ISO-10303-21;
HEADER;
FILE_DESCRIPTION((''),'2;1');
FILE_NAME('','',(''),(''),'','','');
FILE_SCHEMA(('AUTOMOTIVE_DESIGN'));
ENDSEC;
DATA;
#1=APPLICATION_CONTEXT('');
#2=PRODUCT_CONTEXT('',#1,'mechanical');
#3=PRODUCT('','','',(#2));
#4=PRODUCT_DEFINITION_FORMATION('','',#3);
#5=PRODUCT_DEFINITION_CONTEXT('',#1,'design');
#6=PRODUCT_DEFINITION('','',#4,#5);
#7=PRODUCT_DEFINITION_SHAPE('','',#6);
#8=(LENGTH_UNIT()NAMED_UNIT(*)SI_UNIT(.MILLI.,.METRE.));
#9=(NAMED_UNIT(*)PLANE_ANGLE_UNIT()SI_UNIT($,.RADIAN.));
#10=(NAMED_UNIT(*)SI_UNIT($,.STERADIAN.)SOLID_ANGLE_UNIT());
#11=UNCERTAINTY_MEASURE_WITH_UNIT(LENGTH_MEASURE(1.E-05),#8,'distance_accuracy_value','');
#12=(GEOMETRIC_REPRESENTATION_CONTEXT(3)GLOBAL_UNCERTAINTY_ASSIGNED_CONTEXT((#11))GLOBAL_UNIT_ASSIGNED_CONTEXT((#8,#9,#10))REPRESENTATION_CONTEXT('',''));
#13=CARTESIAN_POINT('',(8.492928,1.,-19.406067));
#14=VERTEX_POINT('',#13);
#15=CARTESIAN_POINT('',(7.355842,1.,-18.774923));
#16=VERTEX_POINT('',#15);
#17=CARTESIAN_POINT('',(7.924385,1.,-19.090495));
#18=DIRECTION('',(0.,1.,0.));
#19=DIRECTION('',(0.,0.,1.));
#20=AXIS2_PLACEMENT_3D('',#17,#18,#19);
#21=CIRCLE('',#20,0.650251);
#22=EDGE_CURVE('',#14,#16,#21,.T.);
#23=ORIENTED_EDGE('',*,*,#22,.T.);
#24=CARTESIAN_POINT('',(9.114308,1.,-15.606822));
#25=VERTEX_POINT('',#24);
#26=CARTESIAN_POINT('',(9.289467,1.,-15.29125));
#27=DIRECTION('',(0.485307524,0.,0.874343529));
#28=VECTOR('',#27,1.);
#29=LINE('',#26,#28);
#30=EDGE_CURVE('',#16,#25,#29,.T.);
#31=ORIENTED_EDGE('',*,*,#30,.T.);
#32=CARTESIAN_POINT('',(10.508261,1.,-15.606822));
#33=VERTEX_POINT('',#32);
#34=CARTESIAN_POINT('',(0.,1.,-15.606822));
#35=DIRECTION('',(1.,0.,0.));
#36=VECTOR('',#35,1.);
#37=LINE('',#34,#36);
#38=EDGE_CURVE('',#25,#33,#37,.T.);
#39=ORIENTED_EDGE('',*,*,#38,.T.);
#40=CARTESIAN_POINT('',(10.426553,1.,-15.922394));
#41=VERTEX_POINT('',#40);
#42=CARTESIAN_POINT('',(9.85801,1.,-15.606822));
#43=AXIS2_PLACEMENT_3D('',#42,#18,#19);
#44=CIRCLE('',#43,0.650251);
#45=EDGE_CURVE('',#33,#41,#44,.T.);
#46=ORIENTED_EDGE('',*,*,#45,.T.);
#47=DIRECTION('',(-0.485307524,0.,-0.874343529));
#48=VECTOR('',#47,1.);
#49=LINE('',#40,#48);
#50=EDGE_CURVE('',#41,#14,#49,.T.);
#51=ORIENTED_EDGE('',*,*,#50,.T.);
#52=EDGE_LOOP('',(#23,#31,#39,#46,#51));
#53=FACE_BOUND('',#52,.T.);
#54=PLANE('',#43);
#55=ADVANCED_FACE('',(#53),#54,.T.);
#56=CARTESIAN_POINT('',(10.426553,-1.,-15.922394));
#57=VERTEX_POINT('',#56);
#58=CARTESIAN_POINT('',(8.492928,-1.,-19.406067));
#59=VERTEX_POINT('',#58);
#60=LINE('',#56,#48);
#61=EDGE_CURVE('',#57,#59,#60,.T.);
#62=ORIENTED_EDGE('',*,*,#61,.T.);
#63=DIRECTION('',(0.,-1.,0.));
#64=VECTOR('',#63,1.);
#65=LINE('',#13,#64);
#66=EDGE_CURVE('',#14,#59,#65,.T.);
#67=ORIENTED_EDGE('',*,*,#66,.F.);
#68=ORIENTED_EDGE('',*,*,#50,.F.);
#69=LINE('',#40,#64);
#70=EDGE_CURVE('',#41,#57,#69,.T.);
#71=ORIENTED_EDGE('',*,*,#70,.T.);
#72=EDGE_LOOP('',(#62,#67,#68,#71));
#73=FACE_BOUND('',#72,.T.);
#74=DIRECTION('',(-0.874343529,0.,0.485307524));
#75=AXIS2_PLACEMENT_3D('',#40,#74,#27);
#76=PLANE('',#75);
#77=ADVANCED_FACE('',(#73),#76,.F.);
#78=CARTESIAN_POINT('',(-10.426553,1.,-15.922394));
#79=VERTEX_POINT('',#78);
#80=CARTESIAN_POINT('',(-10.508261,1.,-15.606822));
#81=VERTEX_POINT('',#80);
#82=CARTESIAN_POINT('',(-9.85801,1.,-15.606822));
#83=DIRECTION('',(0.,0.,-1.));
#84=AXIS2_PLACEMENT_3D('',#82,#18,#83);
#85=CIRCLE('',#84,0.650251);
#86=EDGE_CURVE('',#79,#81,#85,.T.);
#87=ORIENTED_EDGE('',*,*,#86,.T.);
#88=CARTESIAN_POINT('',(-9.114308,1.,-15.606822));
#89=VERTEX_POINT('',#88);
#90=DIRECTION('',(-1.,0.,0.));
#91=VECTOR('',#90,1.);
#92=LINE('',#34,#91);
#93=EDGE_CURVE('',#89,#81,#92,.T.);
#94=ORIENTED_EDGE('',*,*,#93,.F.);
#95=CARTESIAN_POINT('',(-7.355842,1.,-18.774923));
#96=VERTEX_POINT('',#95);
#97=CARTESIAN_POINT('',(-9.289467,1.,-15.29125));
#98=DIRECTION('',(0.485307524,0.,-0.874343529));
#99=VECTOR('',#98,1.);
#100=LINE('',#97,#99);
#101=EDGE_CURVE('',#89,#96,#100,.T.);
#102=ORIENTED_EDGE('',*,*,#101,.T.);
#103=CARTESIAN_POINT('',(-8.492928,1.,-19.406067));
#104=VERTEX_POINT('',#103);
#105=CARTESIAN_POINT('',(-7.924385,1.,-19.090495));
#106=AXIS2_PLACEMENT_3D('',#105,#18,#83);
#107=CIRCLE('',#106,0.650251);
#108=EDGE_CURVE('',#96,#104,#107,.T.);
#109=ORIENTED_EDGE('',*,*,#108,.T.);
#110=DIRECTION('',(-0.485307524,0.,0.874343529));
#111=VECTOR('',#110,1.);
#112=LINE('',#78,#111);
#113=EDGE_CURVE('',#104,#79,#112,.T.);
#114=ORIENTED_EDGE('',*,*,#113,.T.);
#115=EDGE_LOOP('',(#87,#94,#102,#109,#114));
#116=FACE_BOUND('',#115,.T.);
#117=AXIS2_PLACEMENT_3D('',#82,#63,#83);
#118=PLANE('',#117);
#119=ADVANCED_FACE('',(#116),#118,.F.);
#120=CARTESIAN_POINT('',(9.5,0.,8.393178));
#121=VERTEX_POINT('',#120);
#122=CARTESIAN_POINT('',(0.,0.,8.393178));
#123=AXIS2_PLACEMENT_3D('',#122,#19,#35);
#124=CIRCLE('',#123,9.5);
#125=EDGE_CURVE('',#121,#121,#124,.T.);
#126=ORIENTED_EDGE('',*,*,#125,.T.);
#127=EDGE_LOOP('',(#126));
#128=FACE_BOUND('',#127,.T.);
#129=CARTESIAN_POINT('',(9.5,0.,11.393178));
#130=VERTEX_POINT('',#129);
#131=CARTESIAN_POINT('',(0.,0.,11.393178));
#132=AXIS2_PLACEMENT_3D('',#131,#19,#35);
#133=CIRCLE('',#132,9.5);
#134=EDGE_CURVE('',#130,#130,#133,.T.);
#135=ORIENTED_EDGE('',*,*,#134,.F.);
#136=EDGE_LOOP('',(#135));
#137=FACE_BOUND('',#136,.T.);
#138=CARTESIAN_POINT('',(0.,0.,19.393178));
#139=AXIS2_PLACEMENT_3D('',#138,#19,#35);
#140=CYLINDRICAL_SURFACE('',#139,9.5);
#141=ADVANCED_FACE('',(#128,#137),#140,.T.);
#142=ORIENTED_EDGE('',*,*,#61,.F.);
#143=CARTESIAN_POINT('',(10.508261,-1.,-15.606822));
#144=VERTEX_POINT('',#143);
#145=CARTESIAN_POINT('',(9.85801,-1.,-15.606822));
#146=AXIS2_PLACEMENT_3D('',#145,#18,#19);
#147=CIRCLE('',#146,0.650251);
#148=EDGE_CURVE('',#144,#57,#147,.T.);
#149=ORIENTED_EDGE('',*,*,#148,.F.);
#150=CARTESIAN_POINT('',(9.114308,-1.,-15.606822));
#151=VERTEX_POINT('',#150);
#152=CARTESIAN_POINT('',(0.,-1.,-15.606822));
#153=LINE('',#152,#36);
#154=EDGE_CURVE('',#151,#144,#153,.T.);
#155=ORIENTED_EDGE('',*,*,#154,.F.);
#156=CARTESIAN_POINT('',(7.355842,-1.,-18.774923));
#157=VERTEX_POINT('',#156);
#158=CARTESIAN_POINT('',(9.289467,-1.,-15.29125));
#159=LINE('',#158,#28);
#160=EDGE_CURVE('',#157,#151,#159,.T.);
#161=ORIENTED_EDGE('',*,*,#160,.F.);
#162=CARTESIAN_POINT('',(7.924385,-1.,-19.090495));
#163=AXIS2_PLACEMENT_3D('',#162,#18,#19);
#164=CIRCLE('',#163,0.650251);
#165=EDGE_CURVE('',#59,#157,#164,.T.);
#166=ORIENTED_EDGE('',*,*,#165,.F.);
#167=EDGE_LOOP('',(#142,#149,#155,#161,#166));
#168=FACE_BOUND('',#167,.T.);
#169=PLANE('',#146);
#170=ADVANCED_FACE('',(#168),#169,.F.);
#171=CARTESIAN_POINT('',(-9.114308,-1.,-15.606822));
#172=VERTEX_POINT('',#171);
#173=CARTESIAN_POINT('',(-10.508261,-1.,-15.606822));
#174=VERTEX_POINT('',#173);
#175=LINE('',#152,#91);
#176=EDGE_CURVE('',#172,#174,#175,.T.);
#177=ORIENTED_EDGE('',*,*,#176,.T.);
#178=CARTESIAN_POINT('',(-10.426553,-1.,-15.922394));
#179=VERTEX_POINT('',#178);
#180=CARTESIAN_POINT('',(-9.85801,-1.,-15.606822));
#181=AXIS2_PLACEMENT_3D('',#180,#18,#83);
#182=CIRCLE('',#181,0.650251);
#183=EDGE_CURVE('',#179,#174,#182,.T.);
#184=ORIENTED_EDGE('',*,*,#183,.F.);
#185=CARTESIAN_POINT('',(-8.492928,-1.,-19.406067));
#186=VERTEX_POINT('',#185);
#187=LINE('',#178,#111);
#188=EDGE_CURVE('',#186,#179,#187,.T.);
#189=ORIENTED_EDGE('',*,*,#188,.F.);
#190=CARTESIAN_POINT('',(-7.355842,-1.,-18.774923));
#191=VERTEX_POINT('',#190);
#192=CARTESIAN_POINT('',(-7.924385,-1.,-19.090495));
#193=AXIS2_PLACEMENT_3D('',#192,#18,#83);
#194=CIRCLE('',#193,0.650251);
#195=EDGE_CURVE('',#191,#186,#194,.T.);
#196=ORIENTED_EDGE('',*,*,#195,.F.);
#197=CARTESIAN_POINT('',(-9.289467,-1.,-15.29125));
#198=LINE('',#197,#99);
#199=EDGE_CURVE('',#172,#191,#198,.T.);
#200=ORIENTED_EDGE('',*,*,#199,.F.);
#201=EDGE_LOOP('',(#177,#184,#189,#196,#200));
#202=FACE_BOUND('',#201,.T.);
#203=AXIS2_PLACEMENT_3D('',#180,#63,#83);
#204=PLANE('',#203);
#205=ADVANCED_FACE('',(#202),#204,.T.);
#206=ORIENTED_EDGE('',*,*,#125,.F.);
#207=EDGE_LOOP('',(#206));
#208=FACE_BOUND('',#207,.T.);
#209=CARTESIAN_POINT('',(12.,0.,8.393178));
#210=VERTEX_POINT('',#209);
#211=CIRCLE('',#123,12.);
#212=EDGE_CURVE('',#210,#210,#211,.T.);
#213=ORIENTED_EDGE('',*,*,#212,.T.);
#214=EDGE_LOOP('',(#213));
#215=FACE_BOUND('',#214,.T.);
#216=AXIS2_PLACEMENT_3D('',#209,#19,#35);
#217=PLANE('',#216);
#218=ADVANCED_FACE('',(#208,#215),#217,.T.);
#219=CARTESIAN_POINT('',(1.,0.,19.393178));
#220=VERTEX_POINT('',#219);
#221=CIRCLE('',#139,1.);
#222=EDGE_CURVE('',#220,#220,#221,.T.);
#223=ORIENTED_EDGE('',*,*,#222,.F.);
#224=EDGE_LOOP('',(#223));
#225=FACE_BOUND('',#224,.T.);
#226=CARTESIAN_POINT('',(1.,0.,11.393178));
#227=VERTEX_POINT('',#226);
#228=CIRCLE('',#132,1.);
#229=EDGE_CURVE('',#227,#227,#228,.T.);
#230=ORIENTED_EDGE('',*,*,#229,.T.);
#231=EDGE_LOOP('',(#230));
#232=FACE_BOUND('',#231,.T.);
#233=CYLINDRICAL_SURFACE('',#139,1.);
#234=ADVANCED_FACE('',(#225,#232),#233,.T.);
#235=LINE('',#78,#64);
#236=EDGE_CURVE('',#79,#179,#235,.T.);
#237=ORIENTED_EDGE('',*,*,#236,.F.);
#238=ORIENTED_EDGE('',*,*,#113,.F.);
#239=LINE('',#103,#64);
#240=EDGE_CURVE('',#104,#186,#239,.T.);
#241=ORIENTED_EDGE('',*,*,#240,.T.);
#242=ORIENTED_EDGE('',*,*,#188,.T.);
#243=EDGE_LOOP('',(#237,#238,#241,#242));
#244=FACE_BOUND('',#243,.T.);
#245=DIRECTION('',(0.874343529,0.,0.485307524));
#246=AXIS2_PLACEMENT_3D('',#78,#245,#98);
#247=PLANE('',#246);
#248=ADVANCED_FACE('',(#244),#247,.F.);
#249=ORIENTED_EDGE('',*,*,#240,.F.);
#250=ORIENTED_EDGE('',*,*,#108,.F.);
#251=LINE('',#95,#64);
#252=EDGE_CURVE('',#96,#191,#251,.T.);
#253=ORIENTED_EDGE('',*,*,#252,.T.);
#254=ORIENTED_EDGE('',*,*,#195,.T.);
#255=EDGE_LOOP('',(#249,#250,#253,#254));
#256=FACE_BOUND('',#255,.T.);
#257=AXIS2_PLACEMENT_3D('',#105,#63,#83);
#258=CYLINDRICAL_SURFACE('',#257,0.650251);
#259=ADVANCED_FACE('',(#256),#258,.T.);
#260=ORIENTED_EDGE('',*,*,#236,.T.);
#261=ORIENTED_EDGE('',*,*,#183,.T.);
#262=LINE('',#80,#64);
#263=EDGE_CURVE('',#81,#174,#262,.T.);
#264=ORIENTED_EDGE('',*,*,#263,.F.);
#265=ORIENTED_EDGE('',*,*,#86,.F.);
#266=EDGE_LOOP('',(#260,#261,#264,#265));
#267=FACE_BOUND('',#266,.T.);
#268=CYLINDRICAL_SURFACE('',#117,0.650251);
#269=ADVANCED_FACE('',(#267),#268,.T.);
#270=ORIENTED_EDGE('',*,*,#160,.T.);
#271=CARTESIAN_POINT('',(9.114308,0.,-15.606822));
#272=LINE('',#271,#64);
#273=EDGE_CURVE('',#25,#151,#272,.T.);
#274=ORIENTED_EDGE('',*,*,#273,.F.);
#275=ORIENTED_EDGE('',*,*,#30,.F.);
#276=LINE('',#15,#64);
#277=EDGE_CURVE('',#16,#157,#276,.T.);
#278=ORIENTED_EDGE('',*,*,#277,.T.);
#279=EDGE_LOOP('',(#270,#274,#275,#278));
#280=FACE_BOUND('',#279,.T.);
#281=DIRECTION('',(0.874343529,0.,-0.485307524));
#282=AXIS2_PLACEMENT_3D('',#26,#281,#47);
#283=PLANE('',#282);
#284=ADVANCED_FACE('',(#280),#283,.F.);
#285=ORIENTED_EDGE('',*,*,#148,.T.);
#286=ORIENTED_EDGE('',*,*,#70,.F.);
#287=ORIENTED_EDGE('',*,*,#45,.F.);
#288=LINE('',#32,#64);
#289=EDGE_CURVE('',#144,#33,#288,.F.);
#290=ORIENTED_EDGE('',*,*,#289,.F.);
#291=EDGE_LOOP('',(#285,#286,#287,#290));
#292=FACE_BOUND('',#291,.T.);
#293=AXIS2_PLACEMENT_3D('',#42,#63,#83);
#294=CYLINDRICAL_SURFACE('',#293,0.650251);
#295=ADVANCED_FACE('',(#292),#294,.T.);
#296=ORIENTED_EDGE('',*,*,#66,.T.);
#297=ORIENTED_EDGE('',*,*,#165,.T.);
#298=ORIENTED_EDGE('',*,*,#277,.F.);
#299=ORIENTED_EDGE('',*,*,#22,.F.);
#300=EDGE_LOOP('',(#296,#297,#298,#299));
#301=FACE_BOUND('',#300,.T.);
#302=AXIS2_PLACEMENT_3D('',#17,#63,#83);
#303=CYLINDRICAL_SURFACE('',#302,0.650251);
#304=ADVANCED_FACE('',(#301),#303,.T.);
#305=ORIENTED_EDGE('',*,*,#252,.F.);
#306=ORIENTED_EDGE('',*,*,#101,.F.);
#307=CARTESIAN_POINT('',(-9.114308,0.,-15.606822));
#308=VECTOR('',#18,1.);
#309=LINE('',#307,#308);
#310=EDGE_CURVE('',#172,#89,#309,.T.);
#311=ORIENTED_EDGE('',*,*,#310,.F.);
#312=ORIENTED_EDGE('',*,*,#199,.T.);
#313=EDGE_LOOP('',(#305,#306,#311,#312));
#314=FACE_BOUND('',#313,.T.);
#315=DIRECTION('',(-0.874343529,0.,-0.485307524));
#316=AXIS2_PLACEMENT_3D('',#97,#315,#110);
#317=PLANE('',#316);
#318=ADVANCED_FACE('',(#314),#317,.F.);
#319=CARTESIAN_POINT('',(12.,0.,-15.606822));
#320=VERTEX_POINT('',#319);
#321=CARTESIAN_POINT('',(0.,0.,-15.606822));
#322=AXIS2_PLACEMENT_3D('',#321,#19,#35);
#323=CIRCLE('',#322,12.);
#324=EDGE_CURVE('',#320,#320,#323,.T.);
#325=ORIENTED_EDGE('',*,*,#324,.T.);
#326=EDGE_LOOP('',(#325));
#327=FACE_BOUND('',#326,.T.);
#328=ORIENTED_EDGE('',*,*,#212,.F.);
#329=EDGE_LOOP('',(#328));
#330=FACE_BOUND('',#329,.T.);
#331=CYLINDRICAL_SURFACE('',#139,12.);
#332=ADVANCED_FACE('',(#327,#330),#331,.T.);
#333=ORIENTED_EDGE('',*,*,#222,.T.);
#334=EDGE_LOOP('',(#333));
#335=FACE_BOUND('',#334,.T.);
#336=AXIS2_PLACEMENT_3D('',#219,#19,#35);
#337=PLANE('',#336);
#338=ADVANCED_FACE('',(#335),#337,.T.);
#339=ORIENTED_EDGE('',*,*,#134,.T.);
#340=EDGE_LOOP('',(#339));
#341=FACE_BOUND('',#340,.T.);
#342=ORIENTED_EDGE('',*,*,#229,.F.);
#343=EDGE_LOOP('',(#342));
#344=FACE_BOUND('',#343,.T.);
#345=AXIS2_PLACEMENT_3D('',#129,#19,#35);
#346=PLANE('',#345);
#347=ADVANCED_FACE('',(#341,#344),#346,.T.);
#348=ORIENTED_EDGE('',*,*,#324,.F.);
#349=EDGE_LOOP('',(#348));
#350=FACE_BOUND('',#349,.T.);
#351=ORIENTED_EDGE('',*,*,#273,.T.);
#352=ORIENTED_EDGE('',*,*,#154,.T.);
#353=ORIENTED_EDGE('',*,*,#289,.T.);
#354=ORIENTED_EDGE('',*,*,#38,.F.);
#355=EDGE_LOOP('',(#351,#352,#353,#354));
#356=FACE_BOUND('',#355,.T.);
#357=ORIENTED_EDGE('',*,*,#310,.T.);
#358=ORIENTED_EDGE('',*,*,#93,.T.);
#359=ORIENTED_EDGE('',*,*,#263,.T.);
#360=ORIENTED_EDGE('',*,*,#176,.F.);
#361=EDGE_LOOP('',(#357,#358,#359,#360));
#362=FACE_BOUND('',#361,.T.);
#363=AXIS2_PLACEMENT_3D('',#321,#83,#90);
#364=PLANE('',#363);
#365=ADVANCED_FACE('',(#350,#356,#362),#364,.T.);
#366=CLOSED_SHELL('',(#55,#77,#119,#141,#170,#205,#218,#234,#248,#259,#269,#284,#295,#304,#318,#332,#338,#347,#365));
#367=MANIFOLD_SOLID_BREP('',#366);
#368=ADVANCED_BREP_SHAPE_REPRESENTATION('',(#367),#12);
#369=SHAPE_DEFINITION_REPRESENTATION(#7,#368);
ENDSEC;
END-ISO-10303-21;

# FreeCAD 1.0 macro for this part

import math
import FreeCAD as App
import Part
import Sketcher
Q = App.Units.Quantity

doc = App.newDocument("Part")
body = doc.addObject("PartDesign::Body", "Body")

# Sketch on XZ plane
sketch1 = body.newObject("Sketcher::SketchObject", "Sketch")
sketch1.AttachmentSupport = (doc.getObject("XZ_Plane"), [""])
sketch1.MapMode = "FlatFace"
sketch1.addGeometry(Part.LineSegment(App.Vector(12, -15.6, 0), App.Vector(0, -15.6, 0)), False)
sketch1.addGeometry(Part.LineSegment(App.Vector(0, -15.6, 0), App.Vector(0, 19.4, 0)), False)
sketch1.addGeometry(Part.LineSegment(App.Vector(0, 19.4, 0), App.Vector(1, 19.4, 0)), False)
sketch1.addGeometry(Part.LineSegment(App.Vector(1, 19.4, 0), App.Vector(1, 11.4, 0)), False)
sketch1.addGeometry(Part.LineSegment(App.Vector(1, 11.4, 0), App.Vector(9.5, 11.4, 0)), False)
sketch1.addGeometry(Part.LineSegment(App.Vector(9.5, 11.4, 0), App.Vector(9.5, 8.4, 0)), False)
sketch1.addGeometry(Part.LineSegment(App.Vector(9.5, 8.4, 0), App.Vector(12, 8.4, 0)), False)
sketch1.addGeometry(Part.LineSegment(App.Vector(12, 8.4, 0), App.Vector(12, -15.6, 0)), False)
sketch1.addConstraint(Sketcher.Constraint("Coincident", 0, 2, 1, 1))
sketch1.addConstraint(Sketcher.Constraint("Coincident", 1, 2, 2, 1))
sketch1.addConstraint(Sketcher.Constraint("Coincident", 2, 2, 3, 1))
sketch1.addConstraint(Sketcher.Constraint("Coincident", 3, 2, 4, 1))
sketch1.addConstraint(Sketcher.Constraint("Coincident", 4, 2, 5, 1))
sketch1.addConstraint(Sketcher.Constraint("Coincident", 5, 2, 6, 1))
sketch1.addConstraint(Sketcher.Constraint("Coincident", 6, 2, 7, 1))
sketch1.addConstraint(Sketcher.Constraint("Coincident", 7, 2, 0, 1))
sketch1.addConstraint(Sketcher.Constraint("Horizontal", 0))
sketch1.addConstraint(Sketcher.Constraint("Vertical", 1))
sketch1.addConstraint(Sketcher.Constraint("Horizontal", 2))
sketch1.addConstraint(Sketcher.Constraint("Vertical", 3))
sketch1.addConstraint(Sketcher.Constraint("Horizontal", 4))
sketch1.addConstraint(Sketcher.Constraint("Vertical", 5))
sketch1.addConstraint(Sketcher.Constraint("Horizontal", 6))
sketch1.addConstraint(Sketcher.Constraint("Vertical", 7))
sketch1.addConstraint(Sketcher.Constraint("PointOnObject", 0, 2, -2))
sketch1.addConstraint(Sketcher.Constraint("DistanceX", 0, 2, 0, 1, Q("12 mm")))
sketch1.addConstraint(Sketcher.Constraint("DistanceX", 2, 1, 2, 2, Q("1 mm")))
sketch1.addConstraint(Sketcher.Constraint("DistanceY", 1, 1, 1, 2, Q("35 mm")))
sketch1.addConstraint(Sketcher.Constraint("DistanceY", 3, 2, 3, 1, Q("8 mm")))
sketch1.addConstraint(Sketcher.Constraint("DistanceY", 5, 2, 5, 1, Q("3 mm")))
sketch1.addConstraint(Sketcher.Constraint("DistanceX", 4, 1, 4, 2, Q("8.5 mm")))
sketch1.addConstraint(Sketcher.Constraint("DistanceY", 0, 2, -1, 1, Q("15.606822 mm")))
revolution = body.newObject("PartDesign::Revolution", "Revolution")
revolution.Profile = sketch1
revolution.ReferenceAxis = (sketch1, ["V_Axis"])
revolution.Angle = 360

# Sketch on XZ plane
sketch2 = body.newObject("Sketcher::SketchObject", "Sketch001")
sketch2.AttachmentSupport = (doc.getObject("XZ_Plane"), [""])
sketch2.MapMode = "FlatFace"
sketch2.addGeometry(Part.LineSegment(App.Vector(7.4, -18.8, 0), App.Vector(9.3, -15.3, 0)), False)
sketch2.addGeometry(Part.ArcOfCircle(Part.Circle(App.Vector(9.9, -15.6, 0), App.Vector(0, 0, 1), 0.7), math.radians(-29), math.radians(151)), False)
sketch2.addGeometry(Part.LineSegment(App.Vector(10.4, -15.9, 0), App.Vector(8.5, -19.4, 0)), False)
sketch2.addGeometry(Part.ArcOfCircle(Part.Circle(App.Vector(7.9, -19.1, 0), App.Vector(0, 0, 1), 0.7), math.radians(151), math.radians(331)), False)
sketch2.addGeometry(Part.LineSegment(App.Vector(-9.3, -15.3, 0), App.Vector(-7.4, -18.8, 0)), False)
sketch2.addGeometry(Part.ArcOfCircle(Part.Circle(App.Vector(-7.9, -19.1, 0), App.Vector(0, 0, 1), 0.7), math.radians(-151), math.radians(29)), False)
sketch2.addGeometry(Part.LineSegment(App.Vector(-8.5, -19.4, 0), App.Vector(-10.4, -15.9, 0)), False)
sketch2.addGeometry(Part.ArcOfCircle(Part.Circle(App.Vector(-9.9, -15.6, 0), App.Vector(0, 0, 1), 0.7), math.radians(29), math.radians(209)), False)
sketch2.addConstraint(Sketcher.Constraint("Tangent", 0, 2, 1, 2))
sketch2.addConstraint(Sketcher.Constraint("Tangent", 1, 1, 2, 1))
sketch2.addConstraint(Sketcher.Constraint("Tangent", 2, 2, 3, 2))
sketch2.addConstraint(Sketcher.Constraint("Tangent", 3, 1, 0, 1))
sketch2.addConstraint(Sketcher.Constraint("Tangent", 4, 2, 5, 2))
sketch2.addConstraint(Sketcher.Constraint("Tangent", 5, 1, 6, 1))
sketch2.addConstraint(Sketcher.Constraint("Tangent", 6, 2, 7, 2))
sketch2.addConstraint(Sketcher.Constraint("Tangent", 7, 1, 4, 1))
sketch2.addConstraint(Sketcher.Constraint("Equal", 1, 3))
sketch2.addConstraint(Sketcher.Constraint("Equal", 3, 5))
sketch2.addConstraint(Sketcher.Constraint("Equal", 5, 7))
sketch2.addConstraint(Sketcher.Constraint("Symmetric", 3, 3, 5, 3, -2))
sketch2.addConstraint(Sketcher.Constraint("Symmetric", 1, 3, 7, 3, -2))
sketch2.addConstraint(Sketcher.Constraint("Radius", 1, Q("0.650251 mm")))
sketch2.addConstraint(Sketcher.Constraint("DistanceY", 3, 3, 1, 1, Q("3.168101 mm")))
sketch2.addConstraint(Sketcher.Constraint("Distance", 0, Q("3.98433 mm")))
sketch2.addConstraint(Sketcher.Constraint("DistanceX", -1, 1, 1, 3, Q("9.85801 mm")))
sketch2.addConstraint(Sketcher.Constraint("DistanceY", 1, 3, -1, 1, Q("15.606822 mm")))
pad1 = body.newObject("PartDesign::Pad", "Pad")
pad1.Profile = sketch2
pad1.Length = 2
pad1.Midplane = True

doc.recompute()
